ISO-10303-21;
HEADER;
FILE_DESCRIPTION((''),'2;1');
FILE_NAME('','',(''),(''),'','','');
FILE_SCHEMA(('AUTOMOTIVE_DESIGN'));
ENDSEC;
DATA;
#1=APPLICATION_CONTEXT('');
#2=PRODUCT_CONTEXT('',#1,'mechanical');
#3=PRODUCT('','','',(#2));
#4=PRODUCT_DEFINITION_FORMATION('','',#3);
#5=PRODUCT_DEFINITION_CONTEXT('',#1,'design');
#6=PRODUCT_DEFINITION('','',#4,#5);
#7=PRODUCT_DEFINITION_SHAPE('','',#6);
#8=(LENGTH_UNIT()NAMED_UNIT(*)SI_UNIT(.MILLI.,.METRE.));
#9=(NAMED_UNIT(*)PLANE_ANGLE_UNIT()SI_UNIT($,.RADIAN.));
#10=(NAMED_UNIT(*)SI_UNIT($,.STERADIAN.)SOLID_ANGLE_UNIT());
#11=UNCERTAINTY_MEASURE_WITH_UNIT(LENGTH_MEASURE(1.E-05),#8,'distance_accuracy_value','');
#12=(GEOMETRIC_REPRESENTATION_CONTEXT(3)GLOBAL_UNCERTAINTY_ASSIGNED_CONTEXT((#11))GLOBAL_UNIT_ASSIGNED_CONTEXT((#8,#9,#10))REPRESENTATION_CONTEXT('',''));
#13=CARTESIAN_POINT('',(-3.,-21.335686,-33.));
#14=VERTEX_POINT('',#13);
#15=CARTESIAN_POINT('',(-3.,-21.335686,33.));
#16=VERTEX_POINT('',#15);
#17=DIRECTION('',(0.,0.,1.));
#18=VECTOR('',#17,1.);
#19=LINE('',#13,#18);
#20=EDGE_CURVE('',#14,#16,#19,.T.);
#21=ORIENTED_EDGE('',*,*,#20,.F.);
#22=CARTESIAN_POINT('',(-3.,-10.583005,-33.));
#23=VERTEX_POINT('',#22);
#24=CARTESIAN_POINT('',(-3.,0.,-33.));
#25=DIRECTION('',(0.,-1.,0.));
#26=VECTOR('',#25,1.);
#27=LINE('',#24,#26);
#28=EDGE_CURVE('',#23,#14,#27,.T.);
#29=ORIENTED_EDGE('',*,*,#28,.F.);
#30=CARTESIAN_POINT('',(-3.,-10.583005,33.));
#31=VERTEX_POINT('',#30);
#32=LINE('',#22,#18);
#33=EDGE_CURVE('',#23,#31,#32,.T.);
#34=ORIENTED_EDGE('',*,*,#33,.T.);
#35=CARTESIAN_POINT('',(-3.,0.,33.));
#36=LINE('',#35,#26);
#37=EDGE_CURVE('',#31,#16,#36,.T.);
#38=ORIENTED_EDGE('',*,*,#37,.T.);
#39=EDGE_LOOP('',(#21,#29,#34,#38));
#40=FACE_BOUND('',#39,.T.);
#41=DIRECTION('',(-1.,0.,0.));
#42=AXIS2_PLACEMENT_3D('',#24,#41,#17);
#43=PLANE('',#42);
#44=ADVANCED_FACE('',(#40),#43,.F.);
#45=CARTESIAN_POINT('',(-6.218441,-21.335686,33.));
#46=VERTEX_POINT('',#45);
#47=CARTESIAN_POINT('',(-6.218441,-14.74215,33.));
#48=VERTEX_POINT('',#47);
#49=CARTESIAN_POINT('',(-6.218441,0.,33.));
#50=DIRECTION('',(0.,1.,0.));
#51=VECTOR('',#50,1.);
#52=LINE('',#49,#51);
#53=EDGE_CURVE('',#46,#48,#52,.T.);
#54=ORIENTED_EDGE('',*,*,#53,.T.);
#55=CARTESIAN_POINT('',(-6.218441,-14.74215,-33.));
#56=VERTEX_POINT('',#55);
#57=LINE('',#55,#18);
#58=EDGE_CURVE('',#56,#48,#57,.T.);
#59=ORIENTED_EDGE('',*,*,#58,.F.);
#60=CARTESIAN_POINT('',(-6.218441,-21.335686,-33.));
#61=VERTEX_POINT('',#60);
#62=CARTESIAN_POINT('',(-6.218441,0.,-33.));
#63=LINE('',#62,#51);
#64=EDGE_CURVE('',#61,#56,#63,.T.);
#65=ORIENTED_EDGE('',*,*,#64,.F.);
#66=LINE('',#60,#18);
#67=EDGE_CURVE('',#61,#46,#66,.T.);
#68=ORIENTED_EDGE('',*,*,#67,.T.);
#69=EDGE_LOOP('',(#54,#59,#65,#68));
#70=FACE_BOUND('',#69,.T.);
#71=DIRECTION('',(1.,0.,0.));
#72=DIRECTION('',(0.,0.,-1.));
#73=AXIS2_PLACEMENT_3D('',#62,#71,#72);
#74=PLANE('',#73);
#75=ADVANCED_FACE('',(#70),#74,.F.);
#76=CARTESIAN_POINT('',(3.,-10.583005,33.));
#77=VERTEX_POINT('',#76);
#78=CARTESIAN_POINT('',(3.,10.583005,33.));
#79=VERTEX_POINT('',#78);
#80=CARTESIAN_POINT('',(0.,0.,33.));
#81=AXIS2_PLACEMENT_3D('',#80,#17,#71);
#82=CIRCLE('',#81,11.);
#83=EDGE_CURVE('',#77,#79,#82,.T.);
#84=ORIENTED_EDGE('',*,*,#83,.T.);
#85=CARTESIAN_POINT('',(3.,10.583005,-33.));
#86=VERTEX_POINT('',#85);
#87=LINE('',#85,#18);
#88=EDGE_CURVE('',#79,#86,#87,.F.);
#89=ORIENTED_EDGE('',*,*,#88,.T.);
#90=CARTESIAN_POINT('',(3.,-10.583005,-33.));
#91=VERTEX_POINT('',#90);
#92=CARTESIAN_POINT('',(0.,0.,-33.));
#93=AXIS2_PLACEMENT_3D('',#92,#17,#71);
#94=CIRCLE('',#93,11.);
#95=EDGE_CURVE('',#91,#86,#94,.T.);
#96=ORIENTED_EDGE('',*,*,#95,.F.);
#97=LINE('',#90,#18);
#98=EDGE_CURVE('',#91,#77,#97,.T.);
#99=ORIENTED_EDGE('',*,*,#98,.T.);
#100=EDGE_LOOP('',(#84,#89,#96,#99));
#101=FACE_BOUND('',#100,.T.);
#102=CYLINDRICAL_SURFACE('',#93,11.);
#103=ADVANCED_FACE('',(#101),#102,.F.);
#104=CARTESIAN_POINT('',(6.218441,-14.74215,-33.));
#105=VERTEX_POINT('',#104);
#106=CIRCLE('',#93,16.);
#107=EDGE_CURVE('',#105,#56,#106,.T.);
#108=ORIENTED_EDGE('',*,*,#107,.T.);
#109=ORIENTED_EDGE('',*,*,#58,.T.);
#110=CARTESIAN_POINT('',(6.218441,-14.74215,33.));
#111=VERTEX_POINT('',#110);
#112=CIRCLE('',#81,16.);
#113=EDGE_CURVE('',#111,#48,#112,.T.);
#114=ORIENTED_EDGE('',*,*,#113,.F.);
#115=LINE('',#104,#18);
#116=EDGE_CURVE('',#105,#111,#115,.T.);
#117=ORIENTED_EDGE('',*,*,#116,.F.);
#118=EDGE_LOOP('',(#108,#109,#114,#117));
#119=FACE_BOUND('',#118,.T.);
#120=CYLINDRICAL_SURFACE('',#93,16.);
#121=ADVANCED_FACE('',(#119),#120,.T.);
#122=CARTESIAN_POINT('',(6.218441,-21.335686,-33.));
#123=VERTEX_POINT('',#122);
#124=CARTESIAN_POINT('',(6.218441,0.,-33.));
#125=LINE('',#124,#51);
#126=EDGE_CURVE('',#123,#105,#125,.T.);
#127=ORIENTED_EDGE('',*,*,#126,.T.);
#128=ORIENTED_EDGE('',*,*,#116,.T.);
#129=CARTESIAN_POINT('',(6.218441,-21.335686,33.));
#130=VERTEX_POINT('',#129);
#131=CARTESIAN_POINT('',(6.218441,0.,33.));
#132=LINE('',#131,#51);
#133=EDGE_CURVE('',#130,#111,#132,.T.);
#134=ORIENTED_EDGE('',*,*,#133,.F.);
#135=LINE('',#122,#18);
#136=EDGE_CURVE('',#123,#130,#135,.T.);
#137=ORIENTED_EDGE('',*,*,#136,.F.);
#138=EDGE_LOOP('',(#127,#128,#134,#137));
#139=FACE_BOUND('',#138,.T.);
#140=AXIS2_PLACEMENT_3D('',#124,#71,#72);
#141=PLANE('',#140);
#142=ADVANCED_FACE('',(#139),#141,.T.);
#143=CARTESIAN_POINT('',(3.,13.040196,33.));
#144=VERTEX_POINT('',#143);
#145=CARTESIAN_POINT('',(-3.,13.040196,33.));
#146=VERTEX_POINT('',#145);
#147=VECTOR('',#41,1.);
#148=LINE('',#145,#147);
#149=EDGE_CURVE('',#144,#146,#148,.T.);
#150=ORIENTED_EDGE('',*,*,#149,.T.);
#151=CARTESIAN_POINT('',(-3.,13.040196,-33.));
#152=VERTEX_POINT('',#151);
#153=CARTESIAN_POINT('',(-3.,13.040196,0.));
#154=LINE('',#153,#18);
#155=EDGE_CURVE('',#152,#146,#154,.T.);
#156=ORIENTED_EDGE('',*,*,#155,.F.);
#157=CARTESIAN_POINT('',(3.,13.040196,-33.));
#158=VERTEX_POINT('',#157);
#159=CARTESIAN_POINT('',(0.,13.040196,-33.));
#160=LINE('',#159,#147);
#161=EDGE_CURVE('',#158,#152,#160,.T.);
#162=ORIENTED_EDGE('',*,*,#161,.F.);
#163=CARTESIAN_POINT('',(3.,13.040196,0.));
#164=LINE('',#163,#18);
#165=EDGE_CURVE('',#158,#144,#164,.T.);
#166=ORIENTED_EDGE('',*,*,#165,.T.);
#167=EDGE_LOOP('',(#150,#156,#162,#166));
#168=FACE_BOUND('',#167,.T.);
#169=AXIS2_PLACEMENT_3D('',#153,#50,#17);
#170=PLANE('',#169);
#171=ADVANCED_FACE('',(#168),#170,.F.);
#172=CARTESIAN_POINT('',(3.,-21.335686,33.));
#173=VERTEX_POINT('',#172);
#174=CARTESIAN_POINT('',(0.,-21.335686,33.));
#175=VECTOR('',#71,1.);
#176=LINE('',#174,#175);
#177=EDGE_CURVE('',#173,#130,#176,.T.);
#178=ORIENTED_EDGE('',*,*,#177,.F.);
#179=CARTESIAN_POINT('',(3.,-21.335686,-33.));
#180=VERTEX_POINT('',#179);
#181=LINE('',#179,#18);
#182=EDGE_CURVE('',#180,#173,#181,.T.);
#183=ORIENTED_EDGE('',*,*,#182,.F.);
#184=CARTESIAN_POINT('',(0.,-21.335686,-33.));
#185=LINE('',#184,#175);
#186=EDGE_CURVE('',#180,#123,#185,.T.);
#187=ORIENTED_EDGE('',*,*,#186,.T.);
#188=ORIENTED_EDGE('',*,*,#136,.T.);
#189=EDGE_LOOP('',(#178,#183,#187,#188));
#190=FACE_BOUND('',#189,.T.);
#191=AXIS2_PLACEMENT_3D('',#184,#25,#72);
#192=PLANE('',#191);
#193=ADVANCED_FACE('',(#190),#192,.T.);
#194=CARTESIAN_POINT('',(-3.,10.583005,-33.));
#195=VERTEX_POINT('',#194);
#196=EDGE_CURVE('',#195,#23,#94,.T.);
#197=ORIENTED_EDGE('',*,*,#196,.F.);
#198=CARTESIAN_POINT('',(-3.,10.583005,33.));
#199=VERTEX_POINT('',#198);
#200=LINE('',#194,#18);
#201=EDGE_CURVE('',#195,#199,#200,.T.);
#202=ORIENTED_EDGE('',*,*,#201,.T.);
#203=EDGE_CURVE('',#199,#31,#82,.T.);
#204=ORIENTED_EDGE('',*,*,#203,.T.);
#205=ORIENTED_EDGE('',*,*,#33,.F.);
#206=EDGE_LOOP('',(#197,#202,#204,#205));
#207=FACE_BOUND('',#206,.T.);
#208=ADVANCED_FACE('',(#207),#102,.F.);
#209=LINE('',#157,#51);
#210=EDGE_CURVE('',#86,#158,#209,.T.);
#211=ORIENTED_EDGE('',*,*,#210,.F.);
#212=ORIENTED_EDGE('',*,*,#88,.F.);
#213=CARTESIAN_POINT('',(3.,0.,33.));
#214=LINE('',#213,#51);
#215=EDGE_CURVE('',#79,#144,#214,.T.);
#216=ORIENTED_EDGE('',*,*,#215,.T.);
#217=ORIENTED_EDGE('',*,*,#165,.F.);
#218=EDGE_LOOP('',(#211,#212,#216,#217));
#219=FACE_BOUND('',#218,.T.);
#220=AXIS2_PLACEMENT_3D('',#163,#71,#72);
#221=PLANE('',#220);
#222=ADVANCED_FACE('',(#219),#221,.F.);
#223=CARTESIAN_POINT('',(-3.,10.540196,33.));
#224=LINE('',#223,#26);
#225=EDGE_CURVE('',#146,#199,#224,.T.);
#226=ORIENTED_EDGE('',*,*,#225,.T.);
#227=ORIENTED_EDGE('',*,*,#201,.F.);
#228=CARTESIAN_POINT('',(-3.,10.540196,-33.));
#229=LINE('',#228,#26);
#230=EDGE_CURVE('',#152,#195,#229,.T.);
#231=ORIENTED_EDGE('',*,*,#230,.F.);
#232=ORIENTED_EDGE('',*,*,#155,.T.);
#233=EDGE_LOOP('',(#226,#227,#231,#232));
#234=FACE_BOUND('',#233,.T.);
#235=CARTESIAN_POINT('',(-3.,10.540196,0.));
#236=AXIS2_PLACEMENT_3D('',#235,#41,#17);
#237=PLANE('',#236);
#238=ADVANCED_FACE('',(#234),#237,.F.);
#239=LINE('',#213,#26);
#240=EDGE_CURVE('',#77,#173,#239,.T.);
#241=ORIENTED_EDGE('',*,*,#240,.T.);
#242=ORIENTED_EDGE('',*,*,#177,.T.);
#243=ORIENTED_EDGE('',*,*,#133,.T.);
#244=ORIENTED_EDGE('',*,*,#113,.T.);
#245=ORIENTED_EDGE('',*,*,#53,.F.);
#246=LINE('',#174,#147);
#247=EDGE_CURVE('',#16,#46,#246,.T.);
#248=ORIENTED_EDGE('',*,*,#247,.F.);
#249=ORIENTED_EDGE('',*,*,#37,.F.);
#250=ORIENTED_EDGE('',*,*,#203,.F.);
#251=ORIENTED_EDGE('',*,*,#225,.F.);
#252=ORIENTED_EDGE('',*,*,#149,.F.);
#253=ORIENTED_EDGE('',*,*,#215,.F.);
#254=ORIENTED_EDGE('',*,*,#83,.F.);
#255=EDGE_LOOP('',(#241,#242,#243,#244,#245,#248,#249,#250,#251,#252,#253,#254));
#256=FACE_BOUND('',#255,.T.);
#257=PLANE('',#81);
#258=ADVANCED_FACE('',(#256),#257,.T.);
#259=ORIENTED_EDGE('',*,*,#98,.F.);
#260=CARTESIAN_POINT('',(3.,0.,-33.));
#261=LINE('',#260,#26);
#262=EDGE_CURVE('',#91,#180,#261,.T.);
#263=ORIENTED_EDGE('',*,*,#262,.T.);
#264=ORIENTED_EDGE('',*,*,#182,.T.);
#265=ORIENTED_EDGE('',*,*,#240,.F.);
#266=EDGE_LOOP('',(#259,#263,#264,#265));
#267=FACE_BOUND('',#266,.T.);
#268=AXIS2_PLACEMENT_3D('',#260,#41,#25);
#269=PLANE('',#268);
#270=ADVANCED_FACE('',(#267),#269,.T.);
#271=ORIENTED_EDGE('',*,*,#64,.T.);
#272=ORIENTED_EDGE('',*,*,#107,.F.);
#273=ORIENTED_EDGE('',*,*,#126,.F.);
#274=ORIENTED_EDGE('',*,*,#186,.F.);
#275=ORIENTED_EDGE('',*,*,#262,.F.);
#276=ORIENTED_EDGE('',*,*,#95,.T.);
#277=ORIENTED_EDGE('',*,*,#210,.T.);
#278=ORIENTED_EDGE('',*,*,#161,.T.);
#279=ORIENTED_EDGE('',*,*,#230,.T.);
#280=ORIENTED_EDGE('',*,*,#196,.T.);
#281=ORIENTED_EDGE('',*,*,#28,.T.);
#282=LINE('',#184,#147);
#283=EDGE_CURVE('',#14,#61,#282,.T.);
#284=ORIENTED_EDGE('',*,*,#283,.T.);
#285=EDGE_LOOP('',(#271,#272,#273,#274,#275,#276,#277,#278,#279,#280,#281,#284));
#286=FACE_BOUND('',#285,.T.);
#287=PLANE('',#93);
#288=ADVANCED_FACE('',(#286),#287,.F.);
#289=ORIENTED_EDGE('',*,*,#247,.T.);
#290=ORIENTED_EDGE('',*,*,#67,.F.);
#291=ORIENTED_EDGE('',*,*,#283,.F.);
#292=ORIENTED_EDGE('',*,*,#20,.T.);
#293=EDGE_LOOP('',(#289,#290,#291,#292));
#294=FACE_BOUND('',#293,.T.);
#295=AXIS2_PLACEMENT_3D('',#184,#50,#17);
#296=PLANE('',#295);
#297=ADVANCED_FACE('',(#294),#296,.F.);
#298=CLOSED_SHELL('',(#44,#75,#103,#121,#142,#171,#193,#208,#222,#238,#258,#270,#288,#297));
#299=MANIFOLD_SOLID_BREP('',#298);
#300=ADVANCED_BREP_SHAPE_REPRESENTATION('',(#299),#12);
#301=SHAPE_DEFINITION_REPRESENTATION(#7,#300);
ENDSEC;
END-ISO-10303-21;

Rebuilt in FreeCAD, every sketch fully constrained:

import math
import FreeCAD as App
import Part
import Sketcher
from FreeCAD import Vector
Q = App.Units.Quantity


def add_polygon(sketch, points):
    """Adds a closed chain of lines whose ends are joined by coincident constraints."""
    first, n = sketch.GeometryCount, len(points)
    for a, b in zip(points, points[1:] + points[:1]):
        sketch.addGeometry(Part.LineSegment(App.Vector(*a, 0), App.Vector(*b, 0)), False)
    for i in range(n):
        sketch.addConstraint(Sketcher.Constraint("Coincident", first + i, 2, first + (i + 1) % n, 1))

doc = App.newDocument("Part")
body = doc.addObject("PartDesign::Body", "Body")

sketch1 = doc.addObject("Sketcher::SketchObject", "Sketch")
body.addObject(sketch1)
sketch1.AttachmentSupport = (doc.XY_Plane, [""])
sketch1.MapMode = "FlatFace"
sketch1.addGeometry(Part.Circle(Vector(0, 0, 0), Vector(0, 0, 1), 16), False)
sketch1.addGeometry(Part.Circle(Vector(0, 0, 0), Vector(0, 0, 1), 11), False)
sketch1.addConstraint(Sketcher.Constraint("Coincident", 0, 3, -1, 1))
sketch1.addConstraint(Sketcher.Constraint("Coincident", 1, 3, -1, 1))
sketch1.addConstraint(Sketcher.Constraint("Diameter", 0, Q("32 mm")))
sketch1.addConstraint(Sketcher.Constraint("Diameter", 1, Q("22 mm")))
pad1 = doc.addObject("PartDesign::Pad", "Pad")
body.addObject(pad1)
pad1.Profile = sketch1
pad1.Type = "TwoLengths"
pad1.Length = 33
pad1.Length2 = 33

sketch2 = doc.addObject("Sketcher::SketchObject", "Sketch001")
body.addObject(sketch2)
sketch2.AttachmentSupport = (doc.XY_Plane, [""])
sketch2.MapMode = "FlatFace"
sketch2.AttachmentOffset = App.Placement(Vector(0, 0, 33), App.Rotation())
sketch2.addGeometry(Part.LineSegment(Vector(-3, 13, 0), Vector(-3, 10.5, 0)), False)
sketch2.addGeometry(Part.ArcOfCircle(Part.Circle(Vector(0, 0, 0), Vector(0, 0, 1), 11), math.radians(74), math.radians(106)), False)
sketch2.addGeometry(Part.LineSegment(Vector(3, 10.5, 0), Vector(3, 13, 0)), False)
sketch2.addGeometry(Part.LineSegment(Vector(3, 13, 0), Vector(-3, 13, 0)), False)
sketch2.addConstraint(Sketcher.Constraint("Coincident", 0, 2, 1, 2))
sketch2.addConstraint(Sketcher.Constraint("Coincident", 1, 1, 2, 1))
sketch2.addConstraint(Sketcher.Constraint("Coincident", 2, 2, 3, 1))
sketch2.addConstraint(Sketcher.Constraint("Coincident", 3, 2, 0, 1))
sketch2.addConstraint(Sketcher.Constraint("Vertical", 0))
sketch2.addConstraint(Sketcher.Constraint("Vertical", 2))
sketch2.addConstraint(Sketcher.Constraint("Horizontal", 3))
sketch2.addConstraint(Sketcher.Constraint("Coincident", 1, 3, -1, 1))
sketch2.addConstraint(Sketcher.Constraint("Horizontal", 0, 2, 1, 1))
sketch2.addConstraint(Sketcher.Constraint("DistanceX", 3, 2, 3, 1, Q("6 mm")))
sketch2.addConstraint(Sketcher.Constraint("DistanceY", 0, 2, 0, 1, Q("2.5 mm")))
sketch2.addConstraint(Sketcher.Constraint("Radius", 1, Q("10.95882 mm")))
pocket1 = doc.addObject("PartDesign::Pocket", "Pocket")
body.addObject(pocket1)
pocket1.Profile = sketch2
pocket1.Length = 33
doc.recompute()

mirrored = doc.addObject("PartDesign::Mirrored", "Mirrored")
body.addObject(mirrored)
mirrored.Originals = [pocket1]
mirrored.MirrorPlane = (doc.XY_Plane, [""])
body.Tip = mirrored

sketch3 = doc.addObject("Sketcher::SketchObject", "Sketch002")
body.addObject(sketch3)
sketch3.AttachmentSupport = (doc.XY_Plane, [""])
sketch3.MapMode = "FlatFace"
sketch3.AttachmentOffset = App.Placement(Vector(0, 0, 33), App.Rotation())
sketch3.addGeometry(Part.LineSegment(Vector(-3, -21.3, 0), Vector(-3, -15.7, 0)), False)
sketch3.addGeometry(Part.ArcOfCircle(Part.Circle(Vector(0, 0, 0), Vector(0, 0, 1), 16), math.radians(-112.87), math.radians(-100.81)), False)
sketch3.addGeometry(Part.LineSegment(Vector(-6.2, -14.7, 0), Vector(-6.2, -21.3, 0)), False)
sketch3.addGeometry(Part.LineSegment(Vector(-6.2, -21.3, 0), Vector(-3, -21.3, 0)), False)
sketch3.addGeometry(Part.ArcOfCircle(Part.Circle(Vector(0, 0, 0), Vector(0, 0, 1), 16), math.radians(-79.19), math.radians(-67.13)), False)
sketch3.addGeometry(Part.LineSegment(Vector(3, -15.7, 0), Vector(3, -21.3, 0)), False)
sketch3.addGeometry(Part.LineSegment(Vector(3, -21.3, 0), Vector(6.2, -21.3, 0)), False)
sketch3.addGeometry(Part.LineSegment(Vector(6.2, -21.3, 0), Vector(6.2, -14.7, 0)), False)
sketch3.addConstraint(Sketcher.Constraint("Coincident", 0, 2, 1, 2))
sketch3.addConstraint(Sketcher.Constraint("Coincident", 1, 1, 2, 1))
sketch3.addConstraint(Sketcher.Constraint("Coincident", 2, 2, 3, 1))
sketch3.addConstraint(Sketcher.Constraint("Coincident", 3, 2, 0, 1))
sketch3.addConstraint(Sketcher.Constraint("Coincident", 4, 1, 5, 1))
sketch3.addConstraint(Sketcher.Constraint("Coincident", 5, 2, 6, 1))
sketch3.addConstraint(Sketcher.Constraint("Coincident", 6, 2, 7, 1))
sketch3.addConstraint(Sketcher.Constraint("Coincident", 7, 2, 4, 2))
sketch3.addConstraint(Sketcher.Constraint("Vertical", 0))
sketch3.addConstraint(Sketcher.Constraint("Vertical", 2))
sketch3.addConstraint(Sketcher.Constraint("Horizontal", 3))
sketch3.addConstraint(Sketcher.Constraint("Vertical", 5))
sketch3.addConstraint(Sketcher.Constraint("Horizontal", 6))
sketch3.addConstraint(Sketcher.Constraint("Vertical", 7))
sketch3.addConstraint(Sketcher.Constraint("Coincident", 1, 3, -1, 1))
sketch3.addConstraint(Sketcher.Constraint("Coincident", 4, 3, -1, 1))
sketch3.addConstraint(Sketcher.Constraint("Equal", 1, 4))
sketch3.addConstraint(Sketcher.Constraint("Symmetric", 3, 2, 5, 2, -2))
sketch3.addConstraint(Sketcher.Constraint("Horizontal", 1, 1, 7, 2))
sketch3.addConstraint(Sketcher.Constraint("Radius", 1, Q("16 mm")))
sketch3.addConstraint(Sketcher.Constraint("DistanceX", 0, 2, -1, 1, Q("3 mm")))
sketch3.addConstraint(Sketcher.Constraint("DistanceX", 3, 1, 3, 2, Q("3.218441 mm")))
sketch3.addConstraint(Sketcher.Constraint("DistanceY", 0, 1, 0, 2, Q("5.619452 mm")))
pad2 = doc.addObject("PartDesign::Pad", "Pad001")
body.addObject(pad2)
pad2.Profile = sketch3
pad2.Length = 66
pad2.Reversed = True

sketch4 = doc.addObject("Sketcher::SketchObject", "Sketch003")
body.addObject(sketch4)
sketch4.AttachmentSupport = (doc.XY_Plane, [""])
sketch4.MapMode = "FlatFace"
sketch4.AttachmentOffset = App.Placement(Vector(0, 0, 33), App.Rotation())
add_polygon(sketch4, [(-3, -11), (-3, -16), (3, -16), (3, -11)])
sketch4.addConstraint(Sketcher.Constraint("Vertical", 0))
sketch4.addConstraint(Sketcher.Constraint("Horizontal", 1))
sketch4.addConstraint(Sketcher.Constraint("Vertical", 2))
sketch4.addConstraint(Sketcher.Constraint("Horizontal", 3))
sketch4.addConstraint(Sketcher.Constraint("DistanceX", 1, 1, 1, 2, Q("6 mm")))
sketch4.addConstraint(Sketcher.Constraint("DistanceX", 0, 2, -1, 1, Q("3 mm")))
sketch4.addConstraint(Sketcher.Constraint("DistanceY", 0, 2, 0, 1, Q("5.688534 mm")))
sketch4.addConstraint(Sketcher.Constraint("DistanceY", 0, 2, -1, 1, Q("16.27154 mm")))
pocket2 = doc.addObject("PartDesign::Pocket", "Pocket001")
body.addObject(pocket2)
pocket2.Profile = sketch4
pocket2.Type = "ThroughAll"

doc.recompute()
